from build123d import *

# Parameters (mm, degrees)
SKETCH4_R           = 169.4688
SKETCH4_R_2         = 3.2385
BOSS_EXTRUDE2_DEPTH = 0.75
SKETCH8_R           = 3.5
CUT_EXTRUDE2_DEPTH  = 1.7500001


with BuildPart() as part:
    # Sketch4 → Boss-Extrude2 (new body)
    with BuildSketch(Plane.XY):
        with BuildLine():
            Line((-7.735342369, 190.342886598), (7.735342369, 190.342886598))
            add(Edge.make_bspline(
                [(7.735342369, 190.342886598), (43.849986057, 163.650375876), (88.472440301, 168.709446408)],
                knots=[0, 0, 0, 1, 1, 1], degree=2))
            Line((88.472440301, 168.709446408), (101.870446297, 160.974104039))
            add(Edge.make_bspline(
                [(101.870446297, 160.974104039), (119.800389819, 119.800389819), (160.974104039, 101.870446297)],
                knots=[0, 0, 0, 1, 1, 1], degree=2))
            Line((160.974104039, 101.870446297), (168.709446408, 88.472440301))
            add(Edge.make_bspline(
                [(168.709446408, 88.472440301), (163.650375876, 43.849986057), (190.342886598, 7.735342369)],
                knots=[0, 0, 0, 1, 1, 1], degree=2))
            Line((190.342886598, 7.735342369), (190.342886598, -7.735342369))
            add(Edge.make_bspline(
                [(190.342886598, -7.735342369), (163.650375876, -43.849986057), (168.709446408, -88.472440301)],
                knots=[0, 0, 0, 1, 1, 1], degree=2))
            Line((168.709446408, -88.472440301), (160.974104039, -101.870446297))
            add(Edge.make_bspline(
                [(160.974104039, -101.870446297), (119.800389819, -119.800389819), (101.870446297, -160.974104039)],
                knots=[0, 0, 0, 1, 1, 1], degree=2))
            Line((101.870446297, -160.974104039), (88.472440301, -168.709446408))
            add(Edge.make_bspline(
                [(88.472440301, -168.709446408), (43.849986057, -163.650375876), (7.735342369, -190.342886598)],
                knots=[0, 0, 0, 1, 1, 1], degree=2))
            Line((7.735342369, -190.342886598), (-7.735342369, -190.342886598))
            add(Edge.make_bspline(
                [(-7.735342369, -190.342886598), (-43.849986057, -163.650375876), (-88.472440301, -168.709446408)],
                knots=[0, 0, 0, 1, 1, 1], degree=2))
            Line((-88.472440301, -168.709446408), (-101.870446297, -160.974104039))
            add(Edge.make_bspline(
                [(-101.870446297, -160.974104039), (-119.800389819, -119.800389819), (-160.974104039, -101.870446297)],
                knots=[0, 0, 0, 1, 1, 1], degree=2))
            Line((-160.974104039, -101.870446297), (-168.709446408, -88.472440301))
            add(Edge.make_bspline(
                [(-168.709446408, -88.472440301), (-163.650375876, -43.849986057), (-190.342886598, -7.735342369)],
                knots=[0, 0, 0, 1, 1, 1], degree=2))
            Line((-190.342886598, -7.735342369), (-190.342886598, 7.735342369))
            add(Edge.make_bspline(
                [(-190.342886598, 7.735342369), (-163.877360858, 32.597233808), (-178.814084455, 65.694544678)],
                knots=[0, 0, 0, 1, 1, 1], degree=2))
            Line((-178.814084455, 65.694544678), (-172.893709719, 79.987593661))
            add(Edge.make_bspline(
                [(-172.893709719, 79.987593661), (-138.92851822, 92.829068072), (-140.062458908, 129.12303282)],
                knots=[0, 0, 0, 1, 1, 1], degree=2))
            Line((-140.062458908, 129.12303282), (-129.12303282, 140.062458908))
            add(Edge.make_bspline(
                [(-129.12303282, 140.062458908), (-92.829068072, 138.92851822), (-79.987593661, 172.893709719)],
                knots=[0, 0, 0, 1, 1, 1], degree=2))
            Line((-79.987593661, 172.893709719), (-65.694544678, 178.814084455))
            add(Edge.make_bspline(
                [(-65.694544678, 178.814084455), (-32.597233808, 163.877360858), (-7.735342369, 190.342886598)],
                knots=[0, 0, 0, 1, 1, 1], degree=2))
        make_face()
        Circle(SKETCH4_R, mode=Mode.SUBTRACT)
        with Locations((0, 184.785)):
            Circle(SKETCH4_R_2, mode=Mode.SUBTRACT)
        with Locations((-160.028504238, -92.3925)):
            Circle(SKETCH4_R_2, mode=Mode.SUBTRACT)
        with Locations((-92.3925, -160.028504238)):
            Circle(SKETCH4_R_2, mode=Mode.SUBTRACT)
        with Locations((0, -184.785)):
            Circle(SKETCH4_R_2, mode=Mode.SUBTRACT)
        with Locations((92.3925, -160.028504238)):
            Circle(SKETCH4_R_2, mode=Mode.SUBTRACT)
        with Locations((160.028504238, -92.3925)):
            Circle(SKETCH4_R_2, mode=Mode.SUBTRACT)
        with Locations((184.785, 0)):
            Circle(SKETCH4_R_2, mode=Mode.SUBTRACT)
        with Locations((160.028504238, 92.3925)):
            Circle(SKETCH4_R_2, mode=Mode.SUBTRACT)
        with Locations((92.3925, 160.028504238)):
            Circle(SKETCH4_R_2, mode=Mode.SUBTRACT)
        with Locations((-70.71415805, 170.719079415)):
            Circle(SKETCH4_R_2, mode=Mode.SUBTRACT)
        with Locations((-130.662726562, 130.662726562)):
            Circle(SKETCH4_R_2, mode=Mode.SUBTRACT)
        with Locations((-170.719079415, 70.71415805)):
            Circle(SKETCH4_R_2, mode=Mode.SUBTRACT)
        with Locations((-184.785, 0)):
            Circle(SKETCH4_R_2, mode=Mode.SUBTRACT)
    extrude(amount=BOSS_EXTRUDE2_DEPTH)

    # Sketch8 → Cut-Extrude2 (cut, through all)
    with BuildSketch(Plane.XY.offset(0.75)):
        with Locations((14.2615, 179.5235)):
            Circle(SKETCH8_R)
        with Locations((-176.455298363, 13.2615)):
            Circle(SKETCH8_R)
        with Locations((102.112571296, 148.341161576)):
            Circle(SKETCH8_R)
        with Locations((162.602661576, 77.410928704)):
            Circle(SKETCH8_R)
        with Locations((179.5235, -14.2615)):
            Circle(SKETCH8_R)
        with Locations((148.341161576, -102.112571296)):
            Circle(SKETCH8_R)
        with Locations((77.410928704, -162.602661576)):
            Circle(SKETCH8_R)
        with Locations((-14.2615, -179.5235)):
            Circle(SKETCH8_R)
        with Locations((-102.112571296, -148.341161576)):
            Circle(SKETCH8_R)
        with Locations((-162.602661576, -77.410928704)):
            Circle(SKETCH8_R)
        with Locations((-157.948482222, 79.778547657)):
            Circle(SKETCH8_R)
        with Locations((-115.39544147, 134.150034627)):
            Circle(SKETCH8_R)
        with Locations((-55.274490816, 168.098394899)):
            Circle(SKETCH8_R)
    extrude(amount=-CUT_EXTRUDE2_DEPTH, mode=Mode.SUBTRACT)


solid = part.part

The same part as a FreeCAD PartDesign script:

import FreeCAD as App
import Part
import Sketcher
from FreeCAD import Vector
Q = App.Units.Quantity

doc = App.newDocument("Part")
body = doc.addObject("PartDesign::Body", "Body")

# Sketch on XY plane
sketch1 = doc.addObject("Sketcher::SketchObject", "Sketch")
body.addObject(sketch1)
sketch1.AttachmentSupport = (doc.XY_Plane, [""])
sketch1.MapMode = "FlatFace"
sketch1.addGeometry([
    Part.LineSegment(Vector(7.735342, 190.342887, 0), Vector(-7.735342, 190.342887, 0)),  # 0
    Part.BSplineCurve([Vector(-65.694545, 178.814084, 0), Vector(-32.597234, 163.877361, 0), Vector(-7.735342, 190.342887, 0)], [3, 3], [0, 1], False, 2, [1, 1, 1], False),  # 1
    Part.LineSegment(Vector(-65.694545, 178.814084, 0), Vector(-79.987594, 172.89371, 0)),  # 2
    Part.BSplineCurve([Vector(-129.123033, 140.062459, 0), Vector(-92.829068, 138.928518, 0), Vector(-79.987594, 172.89371, 0)], [3, 3], [0, 1], False, 2, [1, 1, 1], False),  # 3
    Part.LineSegment(Vector(-129.123033, 140.062459, 0), Vector(-140.062459, 129.123033, 0)),  # 4
    Part.BSplineCurve([Vector(-172.89371, 79.987594, 0), Vector(-138.928518, 92.829068, 0), Vector(-140.062459, 129.123033, 0)], [3, 3], [0, 1], False, 2, [1, 1, 1], False),  # 5
    Part.LineSegment(Vector(-172.89371, 79.987594, 0), Vector(-178.814084, 65.694545, 0)),  # 6
    Part.BSplineCurve([Vector(-190.342887, 7.735342, 0), Vector(-163.877361, 32.597234, 0), Vector(-178.814084, 65.694545, 0)], [3, 3], [0, 1], False, 2, [1, 1, 1], False),  # 7
    Part.LineSegment(Vector(-190.342887, 7.735342, 0), Vector(-190.342887, -7.735342, 0)),  # 8
    Part.BSplineCurve([Vector(-168.709446, -88.47244, 0), Vector(-163.650376, -43.849986, 0), Vector(-190.342887, -7.735342, 0)], [3, 3], [0, 1], False, 2, [1, 1, 1], False),  # 9
    Part.LineSegment(Vector(-168.709446, -88.47244, 0), Vector(-160.974104, -101.870446, 0)),  # 10
    Part.BSplineCurve([Vector(-101.870446, -160.974104, 0), Vector(-119.80039, -119.80039, 0), Vector(-160.974104, -101.870446, 0)], [3, 3], [0, 1], False, 2, [1, 1, 1], False),  # 11
    Part.LineSegment(Vector(-101.870446, -160.974104, 0), Vector(-88.47244, -168.709446, 0)),  # 12
    Part.BSplineCurve([Vector(-7.735342, -190.342887, 0), Vector(-43.849986, -163.650376, 0), Vector(-88.47244, -168.709446, 0)], [3, 3], [0, 1], False, 2, [1, 1, 1], False),  # 13
    Part.LineSegment(Vector(-7.735342, -190.342887, 0), Vector(7.735342, -190.342887, 0)),  # 14
    Part.BSplineCurve([Vector(88.47244, -168.709446, 0), Vector(43.849986, -163.650376, 0), Vector(7.735342, -190.342887, 0)], [3, 3], [0, 1], False, 2, [1, 1, 1], False),  # 15
    Part.LineSegment(Vector(88.47244, -168.709446, 0), Vector(101.870446, -160.974104, 0)),  # 16
    Part.BSplineCurve([Vector(160.974104, -101.870446, 0), Vector(119.80039, -119.80039, 0), Vector(101.870446, -160.974104, 0)], [3, 3], [0, 1], False, 2, [1, 1, 1], False),  # 17
    Part.LineSegment(Vector(160.974104, -101.870446, 0), Vector(168.709446, -88.47244, 0)),  # 18
    Part.BSplineCurve([Vector(190.342887, -7.735342, 0), Vector(163.650376, -43.849986, 0), Vector(168.709446, -88.47244, 0)], [3, 3], [0, 1], False, 2, [1, 1, 1], False),  # 19
    Part.LineSegment(Vector(190.342887, -7.735342, 0), Vector(190.342887, 7.735342, 0)),  # 20
    Part.BSplineCurve([Vector(168.709446, 88.47244, 0), Vector(163.650376, 43.849986, 0), Vector(190.342887, 7.735342, 0)], [3, 3], [0, 1], False, 2, [1, 1, 1], False),  # 21
    Part.LineSegment(Vector(168.709446, 88.47244, 0), Vector(160.974104, 101.870446, 0)),  # 22
    Part.BSplineCurve([Vector(101.870446, 160.974104, 0), Vector(119.80039, 119.80039, 0), Vector(160.974104, 101.870446, 0)], [3, 3], [0, 1], False, 2, [1, 1, 1], False),  # 23
    Part.LineSegment(Vector(101.870446, 160.974104, 0), Vector(88.47244, 168.709446, 0)),  # 24
    Part.BSplineCurve([Vector(7.735342, 190.342887, 0), Vector(43.849986, 163.650376, 0), Vector(88.47244, 168.709446, 0)], [3, 3], [0, 1], False, 2, [1, 1, 1], False),  # 25
    Part.Circle(Vector(92.3925, -160.028504, 0), Vector(0, 0, 1), 3.2385),  # 26
    Part.Circle(Vector(160.028504, -92.3925, 0), Vector(0, 0, 1), 3.2385),  # 27
    Part.Circle(Vector(0, -184.785, 0), Vector(0, 0, 1), 3.2385),  # 28
    Part.Circle(Vector(-92.3925, -160.028504, 0), Vector(0, 0, 1), 3.2385),  # 29
    Part.Circle(Vector(-160.028504, -92.3925, 0), Vector(0, 0, 1), 3.2385),  # 30
    Part.Circle(Vector(184.785, 0, 0), Vector(0, 0, 1), 3.2385),  # 31
    Part.Circle(Vector(160.028504, 92.3925, 0), Vector(0, 0, 1), 3.2385),  # 32
    Part.Circle(Vector(92.3925, 160.028504, 0), Vector(0, 0, 1), 3.2385),  # 33
    Part.Circle(Vector(0, 0, 0), Vector(0, 0, 1), 169.4688),  # 34
    Part.Circle(Vector(-184.785, 0, 0), Vector(0, 0, 1), 3.2385),  # 35
    Part.Circle(Vector(-170.719079, 70.714158, 0), Vector(0, 0, 1), 3.2385),  # 36
    Part.Circle(Vector(0, 184.785, 0), Vector(0, 0, 1), 3.2385),  # 37
    Part.Circle(Vector(-70.714158, 170.719079, 0), Vector(0, 0, 1), 3.2385),  # 38
    Part.Circle(Vector(-130.662727, 130.662727, 0), Vector(0, 0, 1), 3.2385),  # 39
], False)
sketch1.addConstraint([
    Sketcher.Constraint("Block", 1),
    Sketcher.Constraint("Block", 3),
    Sketcher.Constraint("Block", 5),
    Sketcher.Constraint("Block", 7),
    Sketcher.Constraint("Block", 9),
    Sketcher.Constraint("Block", 11),
    Sketcher.Constraint("Block", 13),
    Sketcher.Constraint("Block", 15),
    Sketcher.Constraint("Block", 17),
    Sketcher.Constraint("Block", 19),
    Sketcher.Constraint("Block", 21),
    Sketcher.Constraint("Block", 23),
    Sketcher.Constraint("Block", 25),
    Sketcher.Constraint("Coincident", 0, 2, 1, 2),
    Sketcher.Constraint("Coincident", 1, 1, 2, 1),
    Sketcher.Constraint("Coincident", 2, 2, 3, 2),
    Sketcher.Constraint("Coincident", 3, 1, 4, 1),
    Sketcher.Constraint("Coincident", 4, 2, 5, 2),
    Sketcher.Constraint("Coincident", 5, 1, 6, 1),
    Sketcher.Constraint("Coincident", 6, 2, 7, 2),
    Sketcher.Constraint("Coincident", 7, 1, 8, 1),
    Sketcher.Constraint("Coincident", 8, 2, 9, 2),
    Sketcher.Constraint("Coincident", 9, 1, 10, 1),
    Sketcher.Constraint("Coincident", 10, 2, 11, 2),
    Sketcher.Constraint("Coincident", 11, 1, 12, 1),
    Sketcher.Constraint("Coincident", 12, 2, 13, 2),
    Sketcher.Constraint("Coincident", 13, 1, 14, 1),
    Sketcher.Constraint("Coincident", 14, 2, 15, 2),
    Sketcher.Constraint("Coincident", 15, 1, 16, 1),
    Sketcher.Constraint("Coincident", 16, 2, 17, 2),
    Sketcher.Constraint("Coincident", 17, 1, 18, 1),
    Sketcher.Constraint("Coincident", 18, 2, 19, 2),
    Sketcher.Constraint("Coincident", 19, 1, 20, 1),
    Sketcher.Constraint("Coincident", 20, 2, 21, 2),
    Sketcher.Constraint("Coincident", 21, 1, 22, 1),
    Sketcher.Constraint("Coincident", 22, 2, 23, 2),
    Sketcher.Constraint("Coincident", 23, 1, 24, 1),
    Sketcher.Constraint("Coincident", 24, 2, 25, 2),
    Sketcher.Constraint("Coincident", 25, 1, 0, 1),
    Sketcher.Constraint("Coincident", 34, 3, -1, 1),
    Sketcher.Constraint("Equal", 26, 27),
    Sketcher.Constraint("Equal", 27, 28),
    Sketcher.Constraint("Equal", 28, 29),
    Sketcher.Constraint("Equal", 29, 30),
    Sketcher.Constraint("Equal", 30, 31),
    Sketcher.Constraint("Equal", 31, 32),
    Sketcher.Constraint("Equal", 32, 33),
    Sketcher.Constraint("Equal", 33, 35),
    Sketcher.Constraint("Equal", 35, 36),
    Sketcher.Constraint("Equal", 36, 37),
    Sketcher.Constraint("Equal", 37, 38),
    Sketcher.Constraint("Equal", 38, 39),
    Sketcher.Constraint("Symmetric", 30, 3, 32, 3, -1, 1),
    Sketcher.Constraint("Symmetric", 29, 3, 33, 3, -1, 1),
    Sketcher.Constraint("Symmetric", 31, 3, 35, 3, -1, 1),
    Sketcher.Constraint("Symmetric", 28, 3, 37, 3, -1, 1),
    Sketcher.Constraint("Symmetric", 26, 3, 29, 3, -2),
    Sketcher.Constraint("Symmetric", 27, 3, 30, 3, -2),
    Sketcher.Constraint("PointOnObject", 28, 3, -2),
    Sketcher.Constraint("PointOnObject", 31, 3, -1),
    Sketcher.Constraint("Diameter", 26, Q("0.255 in")),
    Sketcher.Constraint("Diameter", 34, Q("13.344 in")),
    Sketcher.Constraint("DistanceY", 28, 3, -1, 1, Q("7.275 in")),
    Sketcher.Constraint("DistanceX", -1, 1, 31, 3, Q("7.275 in")),
    Sketcher.Constraint("DistanceX", 29, 3, 26, 3, Q("7.275 in")),
    Sketcher.Constraint("DistanceY", 27, 3, 32, 3, Q("7.275 in")),
    Sketcher.Constraint("DistanceX", 4, 2, 38, 3, Q("69.348301 mm")),
    Sketcher.Constraint("DistanceY", 8, 2, 36, 3, Q("78.4495 mm")),
    Sketcher.Constraint("DistanceX", 10, 2, 30, 3, Q("0.9456 mm")),
    Sketcher.Constraint("DistanceY", 16, 2, 26, 3, Q("0.9456 mm")),
    Sketcher.Constraint("DistanceX", 36, 3, -1, 1, Q("170.719079 mm")),
    Sketcher.Constraint("DistanceY", -1, 1, 38, 3, Q("170.719079 mm")),
    Sketcher.Constraint("DistanceY", 36, 3, 39, 3, Q("59.948569 mm")),
    Sketcher.Constraint("DistanceX", 39, 3, 38, 3, Q("59.948569 mm")),
])
pad1 = doc.addObject("PartDesign::Pad", "Pad")
body.addObject(pad1)
pad1.Profile = sketch1
pad1.Length = 0.75

# Sketch on XY plane
sketch2 = doc.addObject("Sketcher::SketchObject", "Sketch001")
body.addObject(sketch2)
sketch2.AttachmentSupport = (doc.XY_Plane, [""])
sketch2.MapMode = "FlatFace"
sketch2.AttachmentOffset = App.Placement(Vector(0, 0, 0.75), App.Rotation())
sketch2.addGeometry([
    Part.Circle(Vector(14.3, 179.5, 0), Vector(0, 0, 1), 3.5),  # 0
    Part.Circle(Vector(-176.5, 13.3, 0), Vector(0, 0, 1), 3.5),  # 1
    Part.Circle(Vector(102.1, 148.3, 0), Vector(0, 0, 1), 3.5),  # 2
    Part.Circle(Vector(162.6, 77.4, 0), Vector(0, 0, 1), 3.5),  # 3
    Part.Circle(Vector(179.5, -14.3, 0), Vector(0, 0, 1), 3.5),  # 4
    Part.Circle(Vector(148.3, -102.1, 0), Vector(0, 0, 1), 3.5),  # 5
    Part.Circle(Vector(77.4, -162.6, 0), Vector(0, 0, 1), 3.5),  # 6
    Part.Circle(Vector(-14.3, -179.5, 0), Vector(0, 0, 1), 3.5),  # 7
    Part.Circle(Vector(-102.1, -148.3, 0), Vector(0, 0, 1), 3.5),  # 8
    Part.Circle(Vector(-162.6, -77.4, 0), Vector(0, 0, 1), 3.5),  # 9
    Part.Circle(Vector(-157.9, 79.8, 0), Vector(0, 0, 1), 3.5),  # 10
    Part.Circle(Vector(-115.4, 134.2, 0), Vector(0, 0, 1), 3.5),  # 11
    Part.Circle(Vector(-55.3, 168.1, 0), Vector(0, 0, 1), 3.5),  # 12
], False)
sketch2.addConstraint([
    Sketcher.Constraint("Equal", 0, 1),
    Sketcher.Constraint("Equal", 1, 2),
    Sketcher.Constraint("Equal", 2, 3),
    Sketcher.Constraint("Equal", 3, 4),
    Sketcher.Constraint("Equal", 4, 5),
    Sketcher.Constraint("Equal", 5, 6),
    Sketcher.Constraint("Equal", 6, 7),
    Sketcher.Constraint("Equal", 7, 8),
    Sketcher.Constraint("Equal", 8, 9),
    Sketcher.Constraint("Equal", 9, 10),
    Sketcher.Constraint("Equal", 10, 11),
    Sketcher.Constraint("Equal", 11, 12),
    Sketcher.Constraint("Symmetric", 0, 3, 7, 3, -1, 1),
    Sketcher.Constraint("Symmetric", 2, 3, 8, 3, -1, 1),
    Sketcher.Constraint("Symmetric", 3, 3, 9, 3, -1, 1),
    Sketcher.Constraint("Diameter", 0, Q("7 mm")),
    Sketcher.Constraint("DistanceX", -1, 1, 0, 3, Q("14.2615 mm")),
    Sketcher.Constraint("DistanceY", -1, 1, 0, 3, Q("179.5235 mm")),
    Sketcher.Constraint("DistanceX", 1, 3, -1, 1, Q("176.455298 mm")),
    Sketcher.Constraint("DistanceY", -1, 1, 1, 3, Q("13.2615 mm")),
    Sketcher.Constraint("DistanceX", -1, 1, 4, 3, Q("179.5235 mm")),
    Sketcher.Constraint("DistanceY", 4, 3, -1, 1, Q("14.2615 mm")),
    Sketcher.Constraint("DistanceX", 5, 3, 3, 3, Q("14.2615 mm")),
    Sketcher.Constraint("DistanceY", 5, 3, 3, 3, Q("179.5235 mm")),
    Sketcher.Constraint("DistanceX", 8, 3, 6, 3, Q("179.5235 mm")),
    Sketcher.Constraint("DistanceY", 6, 3, 8, 3, Q("14.2615 mm")),
    Sketcher.Constraint("DistanceX", -1, 1, 2, 3, Q("102.112571 mm")),
    Sketcher.Constraint("DistanceY", -1, 1, 2, 3, Q("148.341162 mm")),
    Sketcher.Constraint("DistanceX", -1, 1, 3, 3, Q("162.602662 mm")),
    Sketcher.Constraint("DistanceY", -1, 1, 3, 3, Q("77.410929 mm")),
    Sketcher.Constraint("DistanceX", 11, 3, -1, 1, Q("115.395441 mm")),
    Sketcher.Constraint("DistanceX", 12, 3, -1, 1, Q("55.274491 mm")),
    Sketcher.Constraint("DistanceX", 9, 3, 10, 3, Q("4.654179 mm")),
    Sketcher.Constraint("DistanceY", 8, 3, 10, 3, Q("228.119709 mm")),
    Sketcher.Constraint("DistanceY", 11, 3, 12, 3, Q("33.94836 mm")),
    Sketcher.Constraint("DistanceY", -1, 1, 11, 3, Q("134.150035 mm")),
])
pocket1 = doc.addObject("PartDesign::Pocket", "Pocket")
body.addObject(pocket1)
pocket1.Profile = sketch2
pocket1.Type = "ThroughAll"

doc.recompute()
